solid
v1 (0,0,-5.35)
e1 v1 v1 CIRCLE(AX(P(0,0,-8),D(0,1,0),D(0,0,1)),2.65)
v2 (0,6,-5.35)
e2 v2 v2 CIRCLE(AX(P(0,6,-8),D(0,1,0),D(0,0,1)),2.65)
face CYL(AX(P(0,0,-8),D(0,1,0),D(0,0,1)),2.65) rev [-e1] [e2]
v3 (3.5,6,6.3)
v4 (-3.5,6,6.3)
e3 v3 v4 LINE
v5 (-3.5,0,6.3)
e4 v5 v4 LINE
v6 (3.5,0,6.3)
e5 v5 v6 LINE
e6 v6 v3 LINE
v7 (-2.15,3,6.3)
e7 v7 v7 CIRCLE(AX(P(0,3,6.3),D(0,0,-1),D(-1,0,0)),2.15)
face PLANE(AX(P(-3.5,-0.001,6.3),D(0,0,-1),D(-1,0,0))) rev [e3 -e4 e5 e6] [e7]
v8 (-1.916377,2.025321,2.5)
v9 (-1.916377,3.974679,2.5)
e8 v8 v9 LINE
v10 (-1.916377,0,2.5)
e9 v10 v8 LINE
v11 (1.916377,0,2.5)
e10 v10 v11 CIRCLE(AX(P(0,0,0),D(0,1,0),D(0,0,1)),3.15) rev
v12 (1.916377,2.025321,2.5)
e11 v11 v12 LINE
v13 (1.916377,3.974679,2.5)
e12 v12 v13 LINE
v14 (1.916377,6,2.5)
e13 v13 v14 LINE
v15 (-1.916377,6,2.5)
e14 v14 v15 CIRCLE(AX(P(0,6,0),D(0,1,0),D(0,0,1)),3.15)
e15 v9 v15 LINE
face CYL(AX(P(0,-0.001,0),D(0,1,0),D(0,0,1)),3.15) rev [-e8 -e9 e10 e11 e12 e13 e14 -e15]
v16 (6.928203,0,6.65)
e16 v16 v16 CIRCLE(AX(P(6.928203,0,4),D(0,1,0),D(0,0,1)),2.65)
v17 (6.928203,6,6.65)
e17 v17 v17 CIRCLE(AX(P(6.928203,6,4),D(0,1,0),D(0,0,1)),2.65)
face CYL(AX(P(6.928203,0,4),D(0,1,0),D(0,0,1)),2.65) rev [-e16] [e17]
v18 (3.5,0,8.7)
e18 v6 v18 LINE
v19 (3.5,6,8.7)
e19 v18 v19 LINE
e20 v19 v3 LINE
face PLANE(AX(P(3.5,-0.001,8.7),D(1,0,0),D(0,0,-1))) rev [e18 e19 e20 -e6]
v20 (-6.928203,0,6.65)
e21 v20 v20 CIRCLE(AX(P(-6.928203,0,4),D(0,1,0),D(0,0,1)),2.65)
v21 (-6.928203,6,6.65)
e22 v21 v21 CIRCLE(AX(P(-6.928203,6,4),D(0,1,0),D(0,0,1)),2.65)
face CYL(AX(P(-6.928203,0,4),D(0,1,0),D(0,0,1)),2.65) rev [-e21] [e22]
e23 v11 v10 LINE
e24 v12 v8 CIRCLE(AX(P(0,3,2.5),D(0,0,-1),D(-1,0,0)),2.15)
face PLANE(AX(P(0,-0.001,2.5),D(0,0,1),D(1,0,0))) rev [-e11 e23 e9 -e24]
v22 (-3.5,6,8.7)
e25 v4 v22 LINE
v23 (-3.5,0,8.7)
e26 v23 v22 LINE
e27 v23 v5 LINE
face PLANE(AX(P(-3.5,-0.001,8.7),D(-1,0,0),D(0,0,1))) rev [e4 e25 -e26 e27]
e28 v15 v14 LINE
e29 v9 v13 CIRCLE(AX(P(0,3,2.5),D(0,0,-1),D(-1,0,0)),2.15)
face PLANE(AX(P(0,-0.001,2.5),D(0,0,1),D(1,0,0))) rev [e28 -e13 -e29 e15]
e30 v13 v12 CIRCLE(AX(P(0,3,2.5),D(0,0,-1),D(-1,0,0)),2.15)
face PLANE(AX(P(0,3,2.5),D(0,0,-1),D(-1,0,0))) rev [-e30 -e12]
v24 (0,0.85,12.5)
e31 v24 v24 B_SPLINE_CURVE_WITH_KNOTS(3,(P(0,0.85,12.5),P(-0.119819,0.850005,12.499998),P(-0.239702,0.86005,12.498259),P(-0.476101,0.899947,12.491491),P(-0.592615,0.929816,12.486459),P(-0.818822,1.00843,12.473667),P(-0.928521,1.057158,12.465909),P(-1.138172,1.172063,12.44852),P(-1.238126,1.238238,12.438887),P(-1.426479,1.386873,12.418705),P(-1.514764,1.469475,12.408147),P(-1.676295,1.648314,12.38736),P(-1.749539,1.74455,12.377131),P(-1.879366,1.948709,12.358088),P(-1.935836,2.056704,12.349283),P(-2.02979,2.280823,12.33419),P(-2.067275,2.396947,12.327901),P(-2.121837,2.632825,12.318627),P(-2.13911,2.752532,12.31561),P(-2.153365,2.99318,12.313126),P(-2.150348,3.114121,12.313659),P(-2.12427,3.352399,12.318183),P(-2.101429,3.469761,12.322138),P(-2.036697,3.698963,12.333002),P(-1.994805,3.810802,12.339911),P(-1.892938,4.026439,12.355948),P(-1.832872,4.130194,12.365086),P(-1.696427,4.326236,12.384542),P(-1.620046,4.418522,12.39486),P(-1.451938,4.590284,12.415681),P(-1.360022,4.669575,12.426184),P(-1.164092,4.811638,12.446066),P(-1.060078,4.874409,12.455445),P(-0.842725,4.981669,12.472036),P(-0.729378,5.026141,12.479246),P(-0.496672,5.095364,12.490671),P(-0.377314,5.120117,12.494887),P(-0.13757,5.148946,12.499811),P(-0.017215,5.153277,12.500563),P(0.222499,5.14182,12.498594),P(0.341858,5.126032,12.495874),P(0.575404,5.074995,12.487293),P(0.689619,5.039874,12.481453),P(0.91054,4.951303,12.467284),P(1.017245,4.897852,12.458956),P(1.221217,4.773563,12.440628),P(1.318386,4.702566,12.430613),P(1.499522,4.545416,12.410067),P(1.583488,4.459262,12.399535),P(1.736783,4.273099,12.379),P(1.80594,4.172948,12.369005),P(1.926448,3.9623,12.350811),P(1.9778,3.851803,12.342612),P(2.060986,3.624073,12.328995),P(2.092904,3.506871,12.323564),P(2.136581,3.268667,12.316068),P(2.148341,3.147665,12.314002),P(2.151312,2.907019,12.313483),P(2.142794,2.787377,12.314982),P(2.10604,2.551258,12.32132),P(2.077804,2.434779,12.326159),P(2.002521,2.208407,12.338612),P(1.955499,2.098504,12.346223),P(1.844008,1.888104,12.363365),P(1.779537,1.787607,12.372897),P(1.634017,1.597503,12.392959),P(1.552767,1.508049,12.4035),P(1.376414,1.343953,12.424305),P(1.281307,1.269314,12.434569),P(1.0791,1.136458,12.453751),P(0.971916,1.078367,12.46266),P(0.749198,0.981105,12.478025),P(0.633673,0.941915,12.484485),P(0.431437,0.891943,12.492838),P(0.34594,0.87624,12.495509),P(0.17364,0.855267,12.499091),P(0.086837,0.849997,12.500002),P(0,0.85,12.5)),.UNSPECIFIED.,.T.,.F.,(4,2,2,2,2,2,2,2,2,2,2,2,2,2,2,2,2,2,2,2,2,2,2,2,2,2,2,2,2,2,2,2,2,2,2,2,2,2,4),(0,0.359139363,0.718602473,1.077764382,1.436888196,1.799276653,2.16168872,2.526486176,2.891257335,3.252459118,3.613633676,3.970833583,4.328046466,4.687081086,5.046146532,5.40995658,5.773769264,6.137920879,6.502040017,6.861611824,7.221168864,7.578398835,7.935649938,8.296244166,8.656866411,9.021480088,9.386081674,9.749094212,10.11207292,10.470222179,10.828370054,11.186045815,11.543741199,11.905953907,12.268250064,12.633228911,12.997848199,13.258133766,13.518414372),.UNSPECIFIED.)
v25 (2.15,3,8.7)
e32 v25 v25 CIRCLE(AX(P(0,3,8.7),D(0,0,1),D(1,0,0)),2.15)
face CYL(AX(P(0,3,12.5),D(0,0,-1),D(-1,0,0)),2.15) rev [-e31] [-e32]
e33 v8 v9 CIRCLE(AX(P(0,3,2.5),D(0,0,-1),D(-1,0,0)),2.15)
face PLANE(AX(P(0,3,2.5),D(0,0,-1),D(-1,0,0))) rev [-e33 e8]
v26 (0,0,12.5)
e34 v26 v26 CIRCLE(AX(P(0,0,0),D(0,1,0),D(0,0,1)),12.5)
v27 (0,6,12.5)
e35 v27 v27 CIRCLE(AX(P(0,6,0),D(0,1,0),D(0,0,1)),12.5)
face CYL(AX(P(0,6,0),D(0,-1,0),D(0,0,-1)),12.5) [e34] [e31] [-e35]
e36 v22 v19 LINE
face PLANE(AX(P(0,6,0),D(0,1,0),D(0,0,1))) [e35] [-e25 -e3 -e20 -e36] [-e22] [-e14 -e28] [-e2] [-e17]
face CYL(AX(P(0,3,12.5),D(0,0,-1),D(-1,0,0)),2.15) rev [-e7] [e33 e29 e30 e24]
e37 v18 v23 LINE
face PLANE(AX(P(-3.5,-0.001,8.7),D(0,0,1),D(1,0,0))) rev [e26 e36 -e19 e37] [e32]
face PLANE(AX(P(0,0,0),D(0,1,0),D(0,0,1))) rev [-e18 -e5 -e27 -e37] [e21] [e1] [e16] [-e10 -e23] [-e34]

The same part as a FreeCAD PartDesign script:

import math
import FreeCAD as App
import Part
import Sketcher
Q = App.Units.Quantity


def add_polygon(sketch, points):
    """Adds a closed chain of lines whose ends are joined by coincident constraints."""
    first, n = sketch.GeometryCount, len(points)
    for a, b in zip(points, points[1:] + points[:1]):
        sketch.addGeometry(Part.LineSegment(App.Vector(*a, 0), App.Vector(*b, 0)), False)
    for i in range(n):
        sketch.addConstraint(Sketcher.Constraint("Coincident", first + i, 2, first + (i + 1) % n, 1))

doc = App.newDocument("Part")
body = doc.addObject("PartDesign::Body", "Body")

# Sketch on XZ plane
sketch1 = doc.addObject("Sketcher::SketchObject", "Sketch")
body.addObject(sketch1)
sketch1.AttachmentSupport = (doc.XZ_Plane, [""])
sketch1.MapMode = "FlatFace"
sketch1.addGeometry(Part.Circle(App.Vector(0, 0, 0), App.Vector(0, 0, 1), 12), False)
sketch1.addConstraint([
    Sketcher.Constraint("Coincident", 0, 3, -1, 1),
    Sketcher.Constraint("Diameter", 0, Q("25 mm")),
])
pad1 = doc.addObject("PartDesign::Pad", "Pad")
body.addObject(pad1)
pad1.Profile = sketch1
pad1.Length = 6
pad1.Reversed = True

# Sketch on XZ plane
sketch2 = doc.addObject("Sketcher::SketchObject", "Sketch001")
body.addObject(sketch2)
sketch2.AttachmentSupport = (doc.XZ_Plane, [""])
sketch2.MapMode = "FlatFace"
sketch2.AttachmentOffset = App.Placement(App.Vector(0, 0, -6), App.Rotation())
sketch2.addGeometry([
    Part.ArcOfCircle(Part.Circle(App.Vector(0, 0, 0), App.Vector(0, 0, 1), 3.1), math.radians(127), math.radians(270)),
    Part.LineSegment(App.Vector(-1.9, 2.5, 0), App.Vector(0, 2.5, 0)),
    Part.LineSegment(App.Vector(0, 2.5, 0), App.Vector(0, -3.1, 0)),
], False)
sketch2.addConstraint([
    Sketcher.Constraint("Coincident", 0, 1, 1, 1),
    Sketcher.Constraint("Coincident", 1, 2, 2, 1),
    Sketcher.Constraint("Coincident", 2, 2, 0, 2),
    Sketcher.Constraint("Horizontal", 1),
    Sketcher.Constraint("Vertical", 2),
    Sketcher.Constraint("Coincident", 0, 3, -1, 1),
    Sketcher.Constraint("PointOnObject", 1, 2, -2),
    Sketcher.Constraint("Radius", 0, Q("3.15 mm")),
    Sketcher.Constraint("DistanceY", 2, 2, 2, 1, Q("5.65 mm")),
])
pocket1 = doc.addObject("PartDesign::Pocket", "Pocket")
body.addObject(pocket1)
pocket1.Profile = sketch2
pocket1.Type = "UpToFirst"
pocket1.Reversed = True

# Sketch on XZ plane
sketch3 = doc.addObject("Sketcher::SketchObject", "Sketch002")
body.addObject(sketch3)
sketch3.AttachmentSupport = (doc.XZ_Plane, [""])
sketch3.MapMode = "FlatFace"
sketch3.AttachmentOffset = App.Placement(App.Vector(0, 0, -6), App.Rotation())
sketch3.addGeometry([
    Part.LineSegment(App.Vector(0, -3.1, 0), App.Vector(0, 2.5, 0)),
    Part.LineSegment(App.Vector(0, 2.5, 0), App.Vector(1.9, 2.5, 0)),
    Part.ArcOfCircle(Part.Circle(App.Vector(0, 0, 0), App.Vector(0, 0, 1), 3.1), math.radians(0), math.radians(53)),
    Part.ArcOfCircle(Part.Circle(App.Vector(0, 0, 0), App.Vector(0, 0, 1), 3.1), math.radians(-90), math.radians(0)),
], False)
sketch3.addConstraint([
    Sketcher.Constraint("Coincident", 0, 2, 1, 1),
    Sketcher.Constraint("Coincident", 1, 2, 2, 2),
    Sketcher.Constraint("Tangent", 2, 1, 3, 2),
    Sketcher.Constraint("Coincident", 3, 1, 0, 1),
    Sketcher.Constraint("Vertical", 0),
    Sketcher.Constraint("Horizontal", 1),
    Sketcher.Constraint("Coincident", 2, 3, -1, 1),
    Sketcher.Constraint("Equal", 2, 3),
    Sketcher.Constraint("PointOnObject", 0, 2, -2),
    Sketcher.Constraint("PointOnObject", 2, 1, -1),
    Sketcher.Constraint("Radius", 2, Q("3.15 mm")),
    Sketcher.Constraint("DistanceY", 0, 1, 0, 2, Q("5.65 mm")),
])
pocket2 = doc.addObject("PartDesign::Pocket", "Pocket001")
body.addObject(pocket2)
pocket2.Profile = sketch3
pocket2.Type = "UpToFirst"
pocket2.Reversed = True

# Sketch on XZ plane
sketch4 = doc.addObject("Sketcher::SketchObject", "Sketch003")
body.addObject(sketch4)
sketch4.AttachmentSupport = (doc.XZ_Plane, [""])
sketch4.MapMode = "FlatFace"
sketch4.AttachmentOffset = App.Placement(App.Vector(0, 0, -6), App.Rotation())
sketch4.addGeometry([
    Part.ArcOfCircle(Part.Circle(App.Vector(0, 0, 0), App.Vector(0, 0, 1), 3.1), math.radians(127), math.radians(270)),
    Part.LineSegment(App.Vector(-1.9, 2.5, 0), App.Vector(0, 2.5, 0)),
    Part.LineSegment(App.Vector(0, 2.5, 0), App.Vector(0, -3.1, 0)),
], False)
sketch4.addConstraint([
    Sketcher.Constraint("Coincident", 0, 1, 1, 1),
    Sketcher.Constraint("Coincident", 1, 2, 2, 1),
    Sketcher.Constraint("Coincident", 2, 2, 0, 2),
    Sketcher.Constraint("Horizontal", 1),
    Sketcher.Constraint("Vertical", 2),
    Sketcher.Constraint("Coincident", 0, 3, -1, 1),
    Sketcher.Constraint("PointOnObject", 1, 2, -2),
    Sketcher.Constraint("Radius", 0, Q("3.15 mm")),
    Sketcher.Constraint("DistanceY", 2, 2, 2, 1, Q("5.65 mm")),
])
pocket3 = doc.addObject("PartDesign::Pocket", "Pocket002")
body.addObject(pocket3)
pocket3.Profile = sketch4
pocket3.Length = 6
pocket3.Reversed = True

# Sketch on XZ plane
sketch5 = doc.addObject("Sketcher::SketchObject", "Sketch004")
body.addObject(sketch5)
sketch5.AttachmentSupport = (doc.XZ_Plane, [""])
sketch5.MapMode = "FlatFace"
sketch5.AttachmentOffset = App.Placement(App.Vector(0, 0, -6), App.Rotation())
sketch5.addGeometry([
    Part.LineSegment(App.Vector(0, -3.1, 0), App.Vector(0, 2.5, 0)),
    Part.LineSegment(App.Vector(0, 2.5, 0), App.Vector(1.9, 2.5, 0)),
    Part.ArcOfCircle(Part.Circle(App.Vector(0, 0, 0), App.Vector(0, 0, 1), 3.1), math.radians(0), math.radians(53)),
    Part.ArcOfCircle(Part.Circle(App.Vector(0, 0, 0), App.Vector(0, 0, 1), 3.1), math.radians(-90), math.radians(0)),
], False)
sketch5.addConstraint([
    Sketcher.Constraint("Coincident", 0, 2, 1, 1),
    Sketcher.Constraint("Coincident", 1, 2, 2, 2),
    Sketcher.Constraint("Tangent", 2, 1, 3, 2),
    Sketcher.Constraint("Coincident", 3, 1, 0, 1),
    Sketcher.Constraint("Vertical", 0),
    Sketcher.Constraint("Horizontal", 1),
    Sketcher.Constraint("Coincident", 2, 3, -1, 1),
    Sketcher.Constraint("Equal", 2, 3),
    Sketcher.Constraint("PointOnObject", 0, 2, -2),
    Sketcher.Constraint("PointOnObject", 2, 1, -1),
    Sketcher.Constraint("Radius", 2, Q("3.15 mm")),
    Sketcher.Constraint("DistanceY", 0, 1, 0, 2, Q("5.65 mm")),
])
pocket4 = doc.addObject("PartDesign::Pocket", "Pocket003")
body.addObject(pocket4)
pocket4.Profile = sketch5
pocket4.Length = 6
pocket4.Reversed = True

# Sketch on XZ plane
sketch6 = doc.addObject("Sketcher::SketchObject", "Sketch005")
body.addObject(sketch6)
sketch6.AttachmentSupport = (doc.XZ_Plane, [""])
sketch6.MapMode = "FlatFace"
sketch6.AttachmentOffset = App.Placement(App.Vector(0, 0, -6), App.Rotation())
add_polygon(sketch6, [(-3.5, 6.3), (-3.5, 8.7), (3.5, 8.7), (3.5, 6.3)])  # lines 0-3
sketch6.addConstraint([
    Sketcher.Constraint("Vertical", 0),
    Sketcher.Constraint("Horizontal", 1),
    Sketcher.Constraint("Vertical", 2),
    Sketcher.Constraint("Horizontal", 3),
    Sketcher.Constraint("DistanceX", 1, 1, 1, 2, Q("7 mm")),
    Sketcher.Constraint("DistanceY", 0, 1, 0, 2, Q("2.4 mm")),
    Sketcher.Constraint("DistanceX", 0, 2, -1, 1, Q("3.5 mm")),
    Sketcher.Constraint("DistanceY", -1, 1, 0, 2, Q("8.7 mm")),
])
pocket5 = doc.addObject("PartDesign::Pocket", "Pocket004")
body.addObject(pocket5)
pocket5.Profile = sketch6
pocket5.Type = "UpToFirst"
pocket5.Reversed = True

# Sketch on XY plane
sketch7 = doc.addObject("Sketcher::SketchObject", "Sketch006")
body.addObject(sketch7)
sketch7.AttachmentSupport = (doc.XY_Plane, [""])
sketch7.MapMode = "FlatFace"
sketch7.AttachmentOffset = App.Placement(App.Vector(0, 0, 2.5), App.Rotation())
sketch7.addGeometry(Part.Circle(App.Vector(0, 3, 0), App.Vector(0, 0, 1), 2.1), False)
sketch7.addConstraint([
    Sketcher.Constraint("PointOnObject", 0, 3, -2),
    Sketcher.Constraint("Diameter", 0, Q("4.3 mm")),
    Sketcher.Constraint("DistanceY", -1, 1, 0, 3, Q("3 mm")),
])
pocket6 = doc.addObject("PartDesign::Pocket", "Pocket005")
body.addObject(pocket6)
pocket6.Profile = sketch7
pocket6.Type = "ThroughAll"
pocket6.Reversed = True

# Sketch on XZ plane
sketch8 = doc.addObject("Sketcher::SketchObject", "Sketch007")
body.addObject(sketch8)
sketch8.AttachmentSupport = (doc.XZ_Plane, [""])
sketch8.MapMode = "FlatFace"
sketch8.AttachmentOffset = App.Placement(App.Vector(0, 0, -6), App.Rotation())
sketch8.addGeometry([
    Part.Circle(App.Vector(0, -8, 0), App.Vector(0, 0, 1), 2.6),
    Part.Circle(App.Vector(6.9, 4, 0), App.Vector(0, 0, 1), 2.6),
    Part.Circle(App.Vector(-6.9, 4, 0), App.Vector(0, 0, 1), 2.6),
], False)
sketch8.addConstraint([
    Sketcher.Constraint("Equal", 0, 1),
    Sketcher.Constraint("Equal", 1, 2),
    Sketcher.Constraint("Symmetric", 1, 3, 2, 3, -2),
    Sketcher.Constraint("PointOnObject", 0, 3, -2),
    Sketcher.Constraint("Diameter", 0, Q("5.3 mm")),
    Sketcher.Constraint("DistanceY", 0, 3, -1, 1, Q("8 mm")),
    Sketcher.Constraint("DistanceY", -1, 1, 1, 3, Q("4 mm")),
    Sketcher.Constraint("DistanceX", -1, 1, 1, 3, Q("6.928203 mm")),
])
pocket7 = doc.addObject("PartDesign::Pocket", "Pocket006")
body.addObject(pocket7)
pocket7.Profile = sketch8
pocket7.Type = "ThroughAll"
pocket7.Reversed = True

doc.recompute()
